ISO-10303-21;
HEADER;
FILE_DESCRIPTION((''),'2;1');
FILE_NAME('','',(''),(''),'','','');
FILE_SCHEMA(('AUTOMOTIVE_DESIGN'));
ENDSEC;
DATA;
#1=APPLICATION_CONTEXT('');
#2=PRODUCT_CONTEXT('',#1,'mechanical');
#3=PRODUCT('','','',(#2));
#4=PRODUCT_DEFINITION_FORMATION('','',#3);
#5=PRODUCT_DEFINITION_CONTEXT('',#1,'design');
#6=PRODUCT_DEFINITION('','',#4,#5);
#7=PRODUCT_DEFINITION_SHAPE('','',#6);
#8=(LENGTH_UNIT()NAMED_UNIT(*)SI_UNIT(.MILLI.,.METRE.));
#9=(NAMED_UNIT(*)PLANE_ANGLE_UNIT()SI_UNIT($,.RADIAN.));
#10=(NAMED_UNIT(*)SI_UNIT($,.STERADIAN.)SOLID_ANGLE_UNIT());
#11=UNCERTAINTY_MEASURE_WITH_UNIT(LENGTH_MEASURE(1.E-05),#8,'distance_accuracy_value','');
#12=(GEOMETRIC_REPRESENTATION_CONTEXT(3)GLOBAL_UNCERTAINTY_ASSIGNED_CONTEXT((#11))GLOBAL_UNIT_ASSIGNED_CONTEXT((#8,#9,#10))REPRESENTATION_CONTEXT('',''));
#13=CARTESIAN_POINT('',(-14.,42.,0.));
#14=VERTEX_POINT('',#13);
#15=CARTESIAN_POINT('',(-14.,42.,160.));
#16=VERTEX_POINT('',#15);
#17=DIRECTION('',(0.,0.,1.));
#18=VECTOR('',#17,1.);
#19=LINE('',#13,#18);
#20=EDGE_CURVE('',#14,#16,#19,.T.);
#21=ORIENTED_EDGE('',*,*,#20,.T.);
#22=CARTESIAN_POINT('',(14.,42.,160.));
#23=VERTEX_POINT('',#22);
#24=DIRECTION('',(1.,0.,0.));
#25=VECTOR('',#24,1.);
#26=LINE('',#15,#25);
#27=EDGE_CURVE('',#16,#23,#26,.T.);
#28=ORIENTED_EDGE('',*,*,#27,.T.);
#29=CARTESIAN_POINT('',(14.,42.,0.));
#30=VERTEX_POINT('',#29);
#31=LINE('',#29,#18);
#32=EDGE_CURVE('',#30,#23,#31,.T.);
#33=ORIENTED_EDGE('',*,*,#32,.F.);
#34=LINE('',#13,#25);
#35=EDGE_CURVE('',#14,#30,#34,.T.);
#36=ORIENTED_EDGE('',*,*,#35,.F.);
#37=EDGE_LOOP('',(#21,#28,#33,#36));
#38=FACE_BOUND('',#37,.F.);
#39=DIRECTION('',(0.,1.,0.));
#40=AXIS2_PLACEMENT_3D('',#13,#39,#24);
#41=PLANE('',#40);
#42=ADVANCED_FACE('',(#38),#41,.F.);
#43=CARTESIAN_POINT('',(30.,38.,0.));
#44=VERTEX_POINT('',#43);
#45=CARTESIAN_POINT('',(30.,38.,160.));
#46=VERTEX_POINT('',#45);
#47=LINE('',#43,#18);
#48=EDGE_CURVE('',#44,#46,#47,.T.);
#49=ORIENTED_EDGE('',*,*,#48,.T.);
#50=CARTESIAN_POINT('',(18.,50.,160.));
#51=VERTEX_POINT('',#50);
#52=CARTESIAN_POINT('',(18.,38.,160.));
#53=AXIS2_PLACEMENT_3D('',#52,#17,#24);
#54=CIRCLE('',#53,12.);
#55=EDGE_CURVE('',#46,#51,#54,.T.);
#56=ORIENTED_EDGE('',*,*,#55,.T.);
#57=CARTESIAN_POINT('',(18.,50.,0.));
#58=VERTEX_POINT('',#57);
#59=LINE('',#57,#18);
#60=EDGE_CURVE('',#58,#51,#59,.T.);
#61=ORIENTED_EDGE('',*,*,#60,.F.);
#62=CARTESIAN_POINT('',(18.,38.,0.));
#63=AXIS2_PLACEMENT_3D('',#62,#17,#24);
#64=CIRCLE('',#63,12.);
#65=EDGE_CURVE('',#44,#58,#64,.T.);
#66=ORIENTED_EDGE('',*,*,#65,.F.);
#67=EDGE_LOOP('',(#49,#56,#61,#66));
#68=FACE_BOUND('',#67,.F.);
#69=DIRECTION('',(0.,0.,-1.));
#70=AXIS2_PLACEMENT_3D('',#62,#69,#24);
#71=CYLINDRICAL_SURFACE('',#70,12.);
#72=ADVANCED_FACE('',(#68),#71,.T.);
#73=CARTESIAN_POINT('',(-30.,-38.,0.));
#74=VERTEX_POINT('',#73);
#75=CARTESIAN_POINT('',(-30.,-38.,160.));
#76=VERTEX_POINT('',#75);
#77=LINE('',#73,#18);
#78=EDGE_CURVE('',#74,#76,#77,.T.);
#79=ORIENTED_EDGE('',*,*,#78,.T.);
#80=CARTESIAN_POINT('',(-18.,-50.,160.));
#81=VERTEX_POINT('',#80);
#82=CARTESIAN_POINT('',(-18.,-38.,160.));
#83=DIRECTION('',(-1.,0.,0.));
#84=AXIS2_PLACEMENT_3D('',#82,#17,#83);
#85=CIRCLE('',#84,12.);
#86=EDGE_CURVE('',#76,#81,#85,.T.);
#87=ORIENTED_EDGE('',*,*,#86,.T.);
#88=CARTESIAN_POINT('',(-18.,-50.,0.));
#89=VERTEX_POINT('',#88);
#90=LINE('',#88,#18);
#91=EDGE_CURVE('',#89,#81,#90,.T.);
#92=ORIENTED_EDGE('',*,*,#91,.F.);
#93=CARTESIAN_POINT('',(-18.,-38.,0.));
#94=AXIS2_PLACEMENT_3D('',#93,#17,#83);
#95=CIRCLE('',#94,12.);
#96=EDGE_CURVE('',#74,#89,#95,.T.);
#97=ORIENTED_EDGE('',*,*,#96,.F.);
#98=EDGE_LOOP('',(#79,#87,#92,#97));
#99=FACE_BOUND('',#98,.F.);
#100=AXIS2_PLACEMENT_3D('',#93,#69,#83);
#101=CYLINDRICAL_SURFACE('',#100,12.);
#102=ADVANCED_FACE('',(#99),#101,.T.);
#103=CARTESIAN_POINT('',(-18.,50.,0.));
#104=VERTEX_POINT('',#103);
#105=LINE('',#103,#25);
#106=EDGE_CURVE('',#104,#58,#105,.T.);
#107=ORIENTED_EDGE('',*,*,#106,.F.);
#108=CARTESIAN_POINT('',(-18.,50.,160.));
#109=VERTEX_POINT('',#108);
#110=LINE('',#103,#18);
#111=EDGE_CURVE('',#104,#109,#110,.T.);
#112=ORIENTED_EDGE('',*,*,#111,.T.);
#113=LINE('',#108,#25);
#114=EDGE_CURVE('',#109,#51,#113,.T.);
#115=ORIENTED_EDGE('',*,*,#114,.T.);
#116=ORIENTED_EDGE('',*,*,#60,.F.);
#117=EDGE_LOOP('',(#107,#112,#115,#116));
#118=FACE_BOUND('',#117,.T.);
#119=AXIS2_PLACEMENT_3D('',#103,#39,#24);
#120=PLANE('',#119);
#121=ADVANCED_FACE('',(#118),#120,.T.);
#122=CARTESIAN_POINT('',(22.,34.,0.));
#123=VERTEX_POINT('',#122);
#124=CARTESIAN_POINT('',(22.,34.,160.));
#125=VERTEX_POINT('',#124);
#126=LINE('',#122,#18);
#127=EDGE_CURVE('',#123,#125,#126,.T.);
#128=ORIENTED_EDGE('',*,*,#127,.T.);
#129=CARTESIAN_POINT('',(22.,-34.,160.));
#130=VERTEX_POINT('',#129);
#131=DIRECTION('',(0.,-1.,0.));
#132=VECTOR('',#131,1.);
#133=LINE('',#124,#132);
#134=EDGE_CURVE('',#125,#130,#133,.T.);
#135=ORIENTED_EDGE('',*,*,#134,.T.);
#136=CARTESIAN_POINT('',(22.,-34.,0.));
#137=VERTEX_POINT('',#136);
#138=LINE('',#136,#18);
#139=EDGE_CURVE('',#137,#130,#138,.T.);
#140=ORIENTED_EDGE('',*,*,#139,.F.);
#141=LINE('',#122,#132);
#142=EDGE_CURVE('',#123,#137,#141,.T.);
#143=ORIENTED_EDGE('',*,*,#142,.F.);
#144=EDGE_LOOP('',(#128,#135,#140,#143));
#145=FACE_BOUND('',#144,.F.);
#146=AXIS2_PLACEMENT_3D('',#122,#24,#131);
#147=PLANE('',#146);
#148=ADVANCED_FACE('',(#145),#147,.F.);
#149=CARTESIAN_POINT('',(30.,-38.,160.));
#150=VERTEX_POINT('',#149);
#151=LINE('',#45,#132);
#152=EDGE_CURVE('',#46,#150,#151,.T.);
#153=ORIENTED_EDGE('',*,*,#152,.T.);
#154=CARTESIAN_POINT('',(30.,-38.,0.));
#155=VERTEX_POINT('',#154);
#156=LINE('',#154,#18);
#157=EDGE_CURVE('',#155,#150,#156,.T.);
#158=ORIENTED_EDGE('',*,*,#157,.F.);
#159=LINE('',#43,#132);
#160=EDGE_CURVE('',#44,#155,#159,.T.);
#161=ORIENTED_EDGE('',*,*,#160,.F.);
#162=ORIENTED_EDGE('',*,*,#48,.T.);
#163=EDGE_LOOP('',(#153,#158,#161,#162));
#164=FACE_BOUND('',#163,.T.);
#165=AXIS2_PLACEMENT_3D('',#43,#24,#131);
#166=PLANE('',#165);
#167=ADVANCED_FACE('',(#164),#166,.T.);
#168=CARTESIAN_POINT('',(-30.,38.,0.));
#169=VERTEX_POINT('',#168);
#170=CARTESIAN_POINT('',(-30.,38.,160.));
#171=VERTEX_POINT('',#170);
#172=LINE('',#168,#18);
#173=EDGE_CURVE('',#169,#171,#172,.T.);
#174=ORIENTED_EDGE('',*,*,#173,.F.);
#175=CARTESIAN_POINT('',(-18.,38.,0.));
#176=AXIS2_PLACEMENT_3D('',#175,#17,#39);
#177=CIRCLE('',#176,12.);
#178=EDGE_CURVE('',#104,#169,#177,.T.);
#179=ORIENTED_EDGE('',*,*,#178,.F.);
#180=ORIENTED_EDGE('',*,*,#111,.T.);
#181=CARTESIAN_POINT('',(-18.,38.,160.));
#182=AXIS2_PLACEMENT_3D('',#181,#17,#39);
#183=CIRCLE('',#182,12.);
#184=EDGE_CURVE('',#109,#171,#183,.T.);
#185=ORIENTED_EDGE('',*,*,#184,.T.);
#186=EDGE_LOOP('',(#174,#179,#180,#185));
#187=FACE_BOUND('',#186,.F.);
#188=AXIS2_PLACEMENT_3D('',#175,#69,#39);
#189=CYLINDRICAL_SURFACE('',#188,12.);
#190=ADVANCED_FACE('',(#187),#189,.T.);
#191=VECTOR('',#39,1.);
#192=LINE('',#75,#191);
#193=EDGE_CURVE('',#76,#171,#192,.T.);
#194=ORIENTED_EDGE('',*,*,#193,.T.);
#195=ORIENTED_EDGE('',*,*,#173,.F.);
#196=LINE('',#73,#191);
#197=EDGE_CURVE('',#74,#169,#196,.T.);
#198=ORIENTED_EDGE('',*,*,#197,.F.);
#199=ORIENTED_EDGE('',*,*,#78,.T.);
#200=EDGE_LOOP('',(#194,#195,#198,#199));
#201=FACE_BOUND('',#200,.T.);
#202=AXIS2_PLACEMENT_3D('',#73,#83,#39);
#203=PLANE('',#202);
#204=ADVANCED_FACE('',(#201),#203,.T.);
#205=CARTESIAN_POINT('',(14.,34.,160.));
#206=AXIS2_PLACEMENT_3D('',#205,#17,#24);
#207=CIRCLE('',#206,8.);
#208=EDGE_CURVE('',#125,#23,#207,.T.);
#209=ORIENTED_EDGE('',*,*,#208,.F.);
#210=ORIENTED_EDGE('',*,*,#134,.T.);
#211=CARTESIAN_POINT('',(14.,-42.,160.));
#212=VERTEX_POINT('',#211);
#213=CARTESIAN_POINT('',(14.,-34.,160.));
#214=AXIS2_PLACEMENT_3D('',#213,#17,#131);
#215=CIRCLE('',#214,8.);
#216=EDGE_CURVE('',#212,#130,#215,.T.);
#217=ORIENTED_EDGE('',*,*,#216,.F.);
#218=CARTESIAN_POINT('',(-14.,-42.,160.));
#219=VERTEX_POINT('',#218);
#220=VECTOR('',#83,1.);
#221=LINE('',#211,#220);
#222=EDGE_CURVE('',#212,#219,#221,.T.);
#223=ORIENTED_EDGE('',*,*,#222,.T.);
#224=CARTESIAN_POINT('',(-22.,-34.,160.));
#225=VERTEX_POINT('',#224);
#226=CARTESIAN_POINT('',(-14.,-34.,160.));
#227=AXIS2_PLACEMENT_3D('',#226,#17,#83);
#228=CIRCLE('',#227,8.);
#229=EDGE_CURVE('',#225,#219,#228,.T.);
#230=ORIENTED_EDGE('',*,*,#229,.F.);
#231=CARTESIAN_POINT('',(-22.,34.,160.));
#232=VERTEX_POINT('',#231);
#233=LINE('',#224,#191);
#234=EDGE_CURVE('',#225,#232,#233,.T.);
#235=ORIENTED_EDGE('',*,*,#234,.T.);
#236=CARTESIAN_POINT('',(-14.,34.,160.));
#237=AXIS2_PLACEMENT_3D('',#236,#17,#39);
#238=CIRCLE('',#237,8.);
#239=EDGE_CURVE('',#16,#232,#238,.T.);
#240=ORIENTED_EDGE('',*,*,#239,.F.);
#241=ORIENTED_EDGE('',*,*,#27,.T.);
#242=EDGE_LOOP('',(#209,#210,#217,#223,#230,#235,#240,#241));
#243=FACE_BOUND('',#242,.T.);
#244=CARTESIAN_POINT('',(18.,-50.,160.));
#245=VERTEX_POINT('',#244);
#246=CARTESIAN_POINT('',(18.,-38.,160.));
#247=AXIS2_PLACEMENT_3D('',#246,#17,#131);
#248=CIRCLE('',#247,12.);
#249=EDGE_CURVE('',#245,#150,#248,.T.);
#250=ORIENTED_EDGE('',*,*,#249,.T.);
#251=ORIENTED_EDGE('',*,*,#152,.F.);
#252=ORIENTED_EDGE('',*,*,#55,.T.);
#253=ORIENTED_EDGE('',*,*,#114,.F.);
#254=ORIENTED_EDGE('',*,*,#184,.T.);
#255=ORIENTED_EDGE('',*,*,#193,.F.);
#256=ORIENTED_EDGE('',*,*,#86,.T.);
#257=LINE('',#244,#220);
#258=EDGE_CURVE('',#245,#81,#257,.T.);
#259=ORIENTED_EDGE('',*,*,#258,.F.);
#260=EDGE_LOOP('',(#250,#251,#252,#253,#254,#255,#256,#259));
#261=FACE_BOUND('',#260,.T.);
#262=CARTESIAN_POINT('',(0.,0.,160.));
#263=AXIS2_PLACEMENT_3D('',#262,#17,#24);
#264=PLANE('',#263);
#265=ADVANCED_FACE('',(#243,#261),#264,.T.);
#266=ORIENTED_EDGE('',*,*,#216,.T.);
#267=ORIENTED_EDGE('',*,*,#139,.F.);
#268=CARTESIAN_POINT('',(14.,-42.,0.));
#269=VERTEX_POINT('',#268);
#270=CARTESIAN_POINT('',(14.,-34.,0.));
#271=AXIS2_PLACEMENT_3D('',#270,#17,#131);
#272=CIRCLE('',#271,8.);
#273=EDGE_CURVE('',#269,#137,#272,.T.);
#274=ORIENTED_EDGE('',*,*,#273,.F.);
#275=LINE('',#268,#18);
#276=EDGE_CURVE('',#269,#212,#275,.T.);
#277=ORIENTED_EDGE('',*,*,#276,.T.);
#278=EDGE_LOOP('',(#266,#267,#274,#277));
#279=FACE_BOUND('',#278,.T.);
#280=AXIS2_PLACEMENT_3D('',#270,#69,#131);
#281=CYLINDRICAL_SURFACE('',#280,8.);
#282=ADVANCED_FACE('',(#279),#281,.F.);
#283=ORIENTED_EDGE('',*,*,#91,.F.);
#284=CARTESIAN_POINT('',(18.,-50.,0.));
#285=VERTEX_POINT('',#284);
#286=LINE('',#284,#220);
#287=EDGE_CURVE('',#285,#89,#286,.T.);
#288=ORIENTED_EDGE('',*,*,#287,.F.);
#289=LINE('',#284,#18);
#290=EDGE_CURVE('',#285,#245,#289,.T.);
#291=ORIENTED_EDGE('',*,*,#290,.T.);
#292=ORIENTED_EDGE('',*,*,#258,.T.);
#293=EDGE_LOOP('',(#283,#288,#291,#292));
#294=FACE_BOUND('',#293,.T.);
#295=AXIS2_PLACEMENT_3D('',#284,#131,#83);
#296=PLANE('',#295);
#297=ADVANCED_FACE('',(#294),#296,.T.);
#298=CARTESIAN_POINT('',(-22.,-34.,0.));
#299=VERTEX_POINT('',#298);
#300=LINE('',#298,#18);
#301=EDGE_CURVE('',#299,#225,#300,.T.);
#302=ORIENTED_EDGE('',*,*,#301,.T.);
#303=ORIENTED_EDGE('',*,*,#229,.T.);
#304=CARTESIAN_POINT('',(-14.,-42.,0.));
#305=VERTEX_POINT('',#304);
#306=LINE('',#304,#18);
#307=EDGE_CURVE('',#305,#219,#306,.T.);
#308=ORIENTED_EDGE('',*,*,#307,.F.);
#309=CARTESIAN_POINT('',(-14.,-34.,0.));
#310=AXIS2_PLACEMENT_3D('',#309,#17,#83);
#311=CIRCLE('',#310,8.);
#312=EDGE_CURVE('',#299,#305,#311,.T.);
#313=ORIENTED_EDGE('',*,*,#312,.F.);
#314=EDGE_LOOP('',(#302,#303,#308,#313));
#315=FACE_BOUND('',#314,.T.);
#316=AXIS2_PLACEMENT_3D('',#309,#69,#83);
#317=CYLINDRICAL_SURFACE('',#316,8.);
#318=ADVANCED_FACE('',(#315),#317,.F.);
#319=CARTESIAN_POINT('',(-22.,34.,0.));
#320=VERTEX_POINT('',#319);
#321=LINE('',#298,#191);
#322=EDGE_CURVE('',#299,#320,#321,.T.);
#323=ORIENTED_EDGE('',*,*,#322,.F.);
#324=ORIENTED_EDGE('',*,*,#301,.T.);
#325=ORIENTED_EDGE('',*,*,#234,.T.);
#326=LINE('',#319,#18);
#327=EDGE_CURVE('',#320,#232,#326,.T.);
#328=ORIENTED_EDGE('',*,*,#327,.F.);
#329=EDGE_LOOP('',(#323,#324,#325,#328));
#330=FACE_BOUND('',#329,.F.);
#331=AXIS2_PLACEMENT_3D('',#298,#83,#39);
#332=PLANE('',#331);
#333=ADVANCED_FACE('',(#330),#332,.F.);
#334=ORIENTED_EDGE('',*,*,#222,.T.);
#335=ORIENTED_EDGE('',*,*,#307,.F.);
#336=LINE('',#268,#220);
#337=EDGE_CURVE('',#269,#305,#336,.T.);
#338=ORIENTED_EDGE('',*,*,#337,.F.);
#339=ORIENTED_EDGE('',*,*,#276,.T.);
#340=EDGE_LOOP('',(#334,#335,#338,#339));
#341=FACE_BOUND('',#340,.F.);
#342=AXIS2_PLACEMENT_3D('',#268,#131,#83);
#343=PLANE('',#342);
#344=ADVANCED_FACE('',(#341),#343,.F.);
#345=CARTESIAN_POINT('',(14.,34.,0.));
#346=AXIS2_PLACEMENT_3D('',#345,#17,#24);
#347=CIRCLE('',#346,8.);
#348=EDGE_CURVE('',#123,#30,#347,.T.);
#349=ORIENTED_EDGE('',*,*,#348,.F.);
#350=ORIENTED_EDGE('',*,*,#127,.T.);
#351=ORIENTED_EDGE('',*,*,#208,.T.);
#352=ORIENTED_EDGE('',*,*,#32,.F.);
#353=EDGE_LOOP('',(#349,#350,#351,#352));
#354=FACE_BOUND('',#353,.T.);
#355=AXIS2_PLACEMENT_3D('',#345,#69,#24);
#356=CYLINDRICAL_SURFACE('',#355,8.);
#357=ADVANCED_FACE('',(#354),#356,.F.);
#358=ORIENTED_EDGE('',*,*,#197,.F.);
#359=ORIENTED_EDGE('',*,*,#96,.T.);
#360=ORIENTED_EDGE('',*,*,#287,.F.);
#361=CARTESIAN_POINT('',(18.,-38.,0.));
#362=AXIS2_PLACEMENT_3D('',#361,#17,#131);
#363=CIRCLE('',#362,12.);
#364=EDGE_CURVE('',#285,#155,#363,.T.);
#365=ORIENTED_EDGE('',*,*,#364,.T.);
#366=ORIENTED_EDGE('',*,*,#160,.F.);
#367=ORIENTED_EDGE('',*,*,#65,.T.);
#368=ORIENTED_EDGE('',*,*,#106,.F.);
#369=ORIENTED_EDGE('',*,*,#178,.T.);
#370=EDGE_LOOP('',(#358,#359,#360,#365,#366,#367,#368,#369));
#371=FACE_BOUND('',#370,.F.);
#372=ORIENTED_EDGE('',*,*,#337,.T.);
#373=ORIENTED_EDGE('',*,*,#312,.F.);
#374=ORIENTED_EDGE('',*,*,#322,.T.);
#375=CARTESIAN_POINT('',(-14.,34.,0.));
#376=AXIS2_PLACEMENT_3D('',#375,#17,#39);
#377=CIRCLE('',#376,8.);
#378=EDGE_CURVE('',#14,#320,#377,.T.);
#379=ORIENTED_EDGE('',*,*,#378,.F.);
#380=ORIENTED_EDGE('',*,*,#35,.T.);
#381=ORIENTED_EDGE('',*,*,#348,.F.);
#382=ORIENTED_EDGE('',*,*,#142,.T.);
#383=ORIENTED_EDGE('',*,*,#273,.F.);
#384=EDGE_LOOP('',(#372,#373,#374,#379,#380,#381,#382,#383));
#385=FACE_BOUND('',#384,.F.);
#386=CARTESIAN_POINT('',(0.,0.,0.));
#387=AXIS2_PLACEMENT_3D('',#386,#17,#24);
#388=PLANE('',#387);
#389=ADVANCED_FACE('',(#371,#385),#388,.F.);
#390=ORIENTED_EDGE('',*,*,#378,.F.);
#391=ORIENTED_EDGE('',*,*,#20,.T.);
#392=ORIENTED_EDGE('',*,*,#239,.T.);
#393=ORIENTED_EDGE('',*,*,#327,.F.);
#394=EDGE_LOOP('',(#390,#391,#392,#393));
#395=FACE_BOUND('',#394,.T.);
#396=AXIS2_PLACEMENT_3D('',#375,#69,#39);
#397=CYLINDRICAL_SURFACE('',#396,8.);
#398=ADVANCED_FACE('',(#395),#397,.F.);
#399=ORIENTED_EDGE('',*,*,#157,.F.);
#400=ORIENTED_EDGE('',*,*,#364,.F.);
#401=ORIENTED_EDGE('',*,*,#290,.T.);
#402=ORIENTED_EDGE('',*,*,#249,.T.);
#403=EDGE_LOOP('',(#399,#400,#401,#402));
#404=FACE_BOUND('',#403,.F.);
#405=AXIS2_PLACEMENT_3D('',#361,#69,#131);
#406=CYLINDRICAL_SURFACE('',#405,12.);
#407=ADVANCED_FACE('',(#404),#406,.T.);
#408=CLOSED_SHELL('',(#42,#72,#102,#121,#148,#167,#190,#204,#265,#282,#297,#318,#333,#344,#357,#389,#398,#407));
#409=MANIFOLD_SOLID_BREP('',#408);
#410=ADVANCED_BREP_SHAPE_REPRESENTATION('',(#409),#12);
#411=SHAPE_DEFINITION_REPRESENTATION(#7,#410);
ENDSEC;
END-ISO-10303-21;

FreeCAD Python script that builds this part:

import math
import FreeCAD as App
import Part
import Sketcher
Q = App.Units.Quantity

doc = App.newDocument("Part")
params = doc.addObject("Spreadsheet::Sheet", "Params")
for row, (alias, value) in enumerate([
    ("sketch1_radius", "12 mm"),
    ("sketch1_radius2", "8 mm"),
    ("pad1_length", "160 mm"),
], start=1):
    params.set(f"A{row}", alias)
    params.set(f"B{row}", "=" + value)
    params.setAlias(f"B{row}", alias)

body = doc.addObject("PartDesign::Body", "Body")

sketch1 = doc.addObject("Sketcher::SketchObject", "Sketch")
body.addObject(sketch1)
sketch1.AttachmentSupport = (doc.XY_Plane, [""])
sketch1.MapMode = "FlatFace"
sketch1.addGeometry([
    Part.LineSegment(App.Vector(-30, 38, 0), App.Vector(-30, -38, 0)),
    Part.ArcOfCircle(Part.Circle(App.Vector(-18, -38, 0), App.Vector(0, 0, 1), 12), math.radians(180), math.radians(270)),
    Part.LineSegment(App.Vector(-18, -50, 0), App.Vector(18, -50, 0)),
    Part.ArcOfCircle(Part.Circle(App.Vector(18, -38, 0), App.Vector(0, 0, 1), 12), math.radians(-90), math.radians(0)),
    Part.LineSegment(App.Vector(30, -38, 0), App.Vector(30, 38, 0)),
    Part.ArcOfCircle(Part.Circle(App.Vector(18, 38, 0), App.Vector(0, 0, 1), 12), math.radians(0), math.radians(90)),
    Part.LineSegment(App.Vector(18, 50, 0), App.Vector(-18, 50, 0)),
    Part.ArcOfCircle(Part.Circle(App.Vector(-18, 38, 0), App.Vector(0, 0, 1), 12), math.radians(90), math.radians(180)),
    Part.ArcOfCircle(Part.Circle(App.Vector(-14, 34, 0), App.Vector(0, 0, 1), 8), math.radians(90), math.radians(180)),
    Part.LineSegment(App.Vector(-14, 42, 0), App.Vector(14, 42, 0)),
    Part.ArcOfCircle(Part.Circle(App.Vector(14, 34, 0), App.Vector(0, 0, 1), 8), math.radians(0), math.radians(90)),
    Part.LineSegment(App.Vector(22, 34, 0), App.Vector(22, -34, 0)),
    Part.ArcOfCircle(Part.Circle(App.Vector(14, -34, 0), App.Vector(0, 0, 1), 8), math.radians(-90), math.radians(0)),
    Part.LineSegment(App.Vector(14, -42, 0), App.Vector(-14, -42, 0)),
    Part.ArcOfCircle(Part.Circle(App.Vector(-14, -34, 0), App.Vector(0, 0, 1), 8), math.radians(180), math.radians(270)),
    Part.LineSegment(App.Vector(-22, -34, 0), App.Vector(-22, 34, 0)),
], False)
sketch1.addConstraint([
    Sketcher.Constraint("Tangent", 0, 2, 1, 1),
    Sketcher.Constraint("Tangent", 1, 2, 2, 1),
    Sketcher.Constraint("Tangent", 2, 2, 3, 1),
    Sketcher.Constraint("Tangent", 3, 2, 4, 1),
    Sketcher.Constraint("Tangent", 4, 2, 5, 1),
    Sketcher.Constraint("Tangent", 5, 2, 6, 1),
    Sketcher.Constraint("Tangent", 6, 2, 7, 1),
    Sketcher.Constraint("Tangent", 7, 2, 0, 1),
    Sketcher.Constraint("Tangent", 8, 1, 9, 1),
    Sketcher.Constraint("Tangent", 9, 2, 10, 2),
    Sketcher.Constraint("Tangent", 10, 1, 11, 1),
    Sketcher.Constraint("Tangent", 11, 2, 12, 2),
    Sketcher.Constraint("Tangent", 12, 1, 13, 1),
    Sketcher.Constraint("Tangent", 13, 2, 14, 2),
    Sketcher.Constraint("Tangent", 14, 1, 15, 1),
    Sketcher.Constraint("Tangent", 15, 2, 8, 2),
    Sketcher.Constraint("Vertical", 0),
    Sketcher.Constraint("Horizontal", 2),
    Sketcher.Constraint("Vertical", 4),
    Sketcher.Constraint("Horizontal", 6),
    Sketcher.Constraint("Horizontal", 9),
    Sketcher.Constraint("Vertical", 11),
    Sketcher.Constraint("Horizontal", 13),
    Sketcher.Constraint("Vertical", 15),
    Sketcher.Constraint("Equal", 1, 3),
    Sketcher.Constraint("Equal", 3, 5),
    Sketcher.Constraint("Equal", 5, 7),
    Sketcher.Constraint("Equal", 8, 10),
    Sketcher.Constraint("Equal", 10, 12),
    Sketcher.Constraint("Equal", 12, 14),
    Sketcher.Constraint("Symmetric", 1, 3, 5, 3, -1, 1),
    Sketcher.Constraint("Symmetric", 8, 3, 12, 3, -1, 1),
    Sketcher.Constraint("Radius", 1, Q("12 mm")),
    Sketcher.Constraint("Radius", 8, Q("8 mm")),
    Sketcher.Constraint("DistanceX", 0, 2, -1, 1, Q("30 mm")),
    Sketcher.Constraint("DistanceY", 1, 2, -1, 1, Q("50 mm")),
    Sketcher.Constraint("DistanceY", 8, 1, 6, 2, Q("8 mm")),
    Sketcher.Constraint("DistanceX", 10, 1, 4, 2, Q("8 mm")),
])
sketch1.setExpression("Constraints[32]", "Params.sketch1_radius")
sketch1.setExpression("Constraints[33]", "Params.sketch1_radius2")
pad1 = doc.addObject("PartDesign::Pad", "Pad")
body.addObject(pad1)
pad1.Profile = sketch1
pad1.setExpression("Length", "Params.pad1_length")

doc.recompute()
